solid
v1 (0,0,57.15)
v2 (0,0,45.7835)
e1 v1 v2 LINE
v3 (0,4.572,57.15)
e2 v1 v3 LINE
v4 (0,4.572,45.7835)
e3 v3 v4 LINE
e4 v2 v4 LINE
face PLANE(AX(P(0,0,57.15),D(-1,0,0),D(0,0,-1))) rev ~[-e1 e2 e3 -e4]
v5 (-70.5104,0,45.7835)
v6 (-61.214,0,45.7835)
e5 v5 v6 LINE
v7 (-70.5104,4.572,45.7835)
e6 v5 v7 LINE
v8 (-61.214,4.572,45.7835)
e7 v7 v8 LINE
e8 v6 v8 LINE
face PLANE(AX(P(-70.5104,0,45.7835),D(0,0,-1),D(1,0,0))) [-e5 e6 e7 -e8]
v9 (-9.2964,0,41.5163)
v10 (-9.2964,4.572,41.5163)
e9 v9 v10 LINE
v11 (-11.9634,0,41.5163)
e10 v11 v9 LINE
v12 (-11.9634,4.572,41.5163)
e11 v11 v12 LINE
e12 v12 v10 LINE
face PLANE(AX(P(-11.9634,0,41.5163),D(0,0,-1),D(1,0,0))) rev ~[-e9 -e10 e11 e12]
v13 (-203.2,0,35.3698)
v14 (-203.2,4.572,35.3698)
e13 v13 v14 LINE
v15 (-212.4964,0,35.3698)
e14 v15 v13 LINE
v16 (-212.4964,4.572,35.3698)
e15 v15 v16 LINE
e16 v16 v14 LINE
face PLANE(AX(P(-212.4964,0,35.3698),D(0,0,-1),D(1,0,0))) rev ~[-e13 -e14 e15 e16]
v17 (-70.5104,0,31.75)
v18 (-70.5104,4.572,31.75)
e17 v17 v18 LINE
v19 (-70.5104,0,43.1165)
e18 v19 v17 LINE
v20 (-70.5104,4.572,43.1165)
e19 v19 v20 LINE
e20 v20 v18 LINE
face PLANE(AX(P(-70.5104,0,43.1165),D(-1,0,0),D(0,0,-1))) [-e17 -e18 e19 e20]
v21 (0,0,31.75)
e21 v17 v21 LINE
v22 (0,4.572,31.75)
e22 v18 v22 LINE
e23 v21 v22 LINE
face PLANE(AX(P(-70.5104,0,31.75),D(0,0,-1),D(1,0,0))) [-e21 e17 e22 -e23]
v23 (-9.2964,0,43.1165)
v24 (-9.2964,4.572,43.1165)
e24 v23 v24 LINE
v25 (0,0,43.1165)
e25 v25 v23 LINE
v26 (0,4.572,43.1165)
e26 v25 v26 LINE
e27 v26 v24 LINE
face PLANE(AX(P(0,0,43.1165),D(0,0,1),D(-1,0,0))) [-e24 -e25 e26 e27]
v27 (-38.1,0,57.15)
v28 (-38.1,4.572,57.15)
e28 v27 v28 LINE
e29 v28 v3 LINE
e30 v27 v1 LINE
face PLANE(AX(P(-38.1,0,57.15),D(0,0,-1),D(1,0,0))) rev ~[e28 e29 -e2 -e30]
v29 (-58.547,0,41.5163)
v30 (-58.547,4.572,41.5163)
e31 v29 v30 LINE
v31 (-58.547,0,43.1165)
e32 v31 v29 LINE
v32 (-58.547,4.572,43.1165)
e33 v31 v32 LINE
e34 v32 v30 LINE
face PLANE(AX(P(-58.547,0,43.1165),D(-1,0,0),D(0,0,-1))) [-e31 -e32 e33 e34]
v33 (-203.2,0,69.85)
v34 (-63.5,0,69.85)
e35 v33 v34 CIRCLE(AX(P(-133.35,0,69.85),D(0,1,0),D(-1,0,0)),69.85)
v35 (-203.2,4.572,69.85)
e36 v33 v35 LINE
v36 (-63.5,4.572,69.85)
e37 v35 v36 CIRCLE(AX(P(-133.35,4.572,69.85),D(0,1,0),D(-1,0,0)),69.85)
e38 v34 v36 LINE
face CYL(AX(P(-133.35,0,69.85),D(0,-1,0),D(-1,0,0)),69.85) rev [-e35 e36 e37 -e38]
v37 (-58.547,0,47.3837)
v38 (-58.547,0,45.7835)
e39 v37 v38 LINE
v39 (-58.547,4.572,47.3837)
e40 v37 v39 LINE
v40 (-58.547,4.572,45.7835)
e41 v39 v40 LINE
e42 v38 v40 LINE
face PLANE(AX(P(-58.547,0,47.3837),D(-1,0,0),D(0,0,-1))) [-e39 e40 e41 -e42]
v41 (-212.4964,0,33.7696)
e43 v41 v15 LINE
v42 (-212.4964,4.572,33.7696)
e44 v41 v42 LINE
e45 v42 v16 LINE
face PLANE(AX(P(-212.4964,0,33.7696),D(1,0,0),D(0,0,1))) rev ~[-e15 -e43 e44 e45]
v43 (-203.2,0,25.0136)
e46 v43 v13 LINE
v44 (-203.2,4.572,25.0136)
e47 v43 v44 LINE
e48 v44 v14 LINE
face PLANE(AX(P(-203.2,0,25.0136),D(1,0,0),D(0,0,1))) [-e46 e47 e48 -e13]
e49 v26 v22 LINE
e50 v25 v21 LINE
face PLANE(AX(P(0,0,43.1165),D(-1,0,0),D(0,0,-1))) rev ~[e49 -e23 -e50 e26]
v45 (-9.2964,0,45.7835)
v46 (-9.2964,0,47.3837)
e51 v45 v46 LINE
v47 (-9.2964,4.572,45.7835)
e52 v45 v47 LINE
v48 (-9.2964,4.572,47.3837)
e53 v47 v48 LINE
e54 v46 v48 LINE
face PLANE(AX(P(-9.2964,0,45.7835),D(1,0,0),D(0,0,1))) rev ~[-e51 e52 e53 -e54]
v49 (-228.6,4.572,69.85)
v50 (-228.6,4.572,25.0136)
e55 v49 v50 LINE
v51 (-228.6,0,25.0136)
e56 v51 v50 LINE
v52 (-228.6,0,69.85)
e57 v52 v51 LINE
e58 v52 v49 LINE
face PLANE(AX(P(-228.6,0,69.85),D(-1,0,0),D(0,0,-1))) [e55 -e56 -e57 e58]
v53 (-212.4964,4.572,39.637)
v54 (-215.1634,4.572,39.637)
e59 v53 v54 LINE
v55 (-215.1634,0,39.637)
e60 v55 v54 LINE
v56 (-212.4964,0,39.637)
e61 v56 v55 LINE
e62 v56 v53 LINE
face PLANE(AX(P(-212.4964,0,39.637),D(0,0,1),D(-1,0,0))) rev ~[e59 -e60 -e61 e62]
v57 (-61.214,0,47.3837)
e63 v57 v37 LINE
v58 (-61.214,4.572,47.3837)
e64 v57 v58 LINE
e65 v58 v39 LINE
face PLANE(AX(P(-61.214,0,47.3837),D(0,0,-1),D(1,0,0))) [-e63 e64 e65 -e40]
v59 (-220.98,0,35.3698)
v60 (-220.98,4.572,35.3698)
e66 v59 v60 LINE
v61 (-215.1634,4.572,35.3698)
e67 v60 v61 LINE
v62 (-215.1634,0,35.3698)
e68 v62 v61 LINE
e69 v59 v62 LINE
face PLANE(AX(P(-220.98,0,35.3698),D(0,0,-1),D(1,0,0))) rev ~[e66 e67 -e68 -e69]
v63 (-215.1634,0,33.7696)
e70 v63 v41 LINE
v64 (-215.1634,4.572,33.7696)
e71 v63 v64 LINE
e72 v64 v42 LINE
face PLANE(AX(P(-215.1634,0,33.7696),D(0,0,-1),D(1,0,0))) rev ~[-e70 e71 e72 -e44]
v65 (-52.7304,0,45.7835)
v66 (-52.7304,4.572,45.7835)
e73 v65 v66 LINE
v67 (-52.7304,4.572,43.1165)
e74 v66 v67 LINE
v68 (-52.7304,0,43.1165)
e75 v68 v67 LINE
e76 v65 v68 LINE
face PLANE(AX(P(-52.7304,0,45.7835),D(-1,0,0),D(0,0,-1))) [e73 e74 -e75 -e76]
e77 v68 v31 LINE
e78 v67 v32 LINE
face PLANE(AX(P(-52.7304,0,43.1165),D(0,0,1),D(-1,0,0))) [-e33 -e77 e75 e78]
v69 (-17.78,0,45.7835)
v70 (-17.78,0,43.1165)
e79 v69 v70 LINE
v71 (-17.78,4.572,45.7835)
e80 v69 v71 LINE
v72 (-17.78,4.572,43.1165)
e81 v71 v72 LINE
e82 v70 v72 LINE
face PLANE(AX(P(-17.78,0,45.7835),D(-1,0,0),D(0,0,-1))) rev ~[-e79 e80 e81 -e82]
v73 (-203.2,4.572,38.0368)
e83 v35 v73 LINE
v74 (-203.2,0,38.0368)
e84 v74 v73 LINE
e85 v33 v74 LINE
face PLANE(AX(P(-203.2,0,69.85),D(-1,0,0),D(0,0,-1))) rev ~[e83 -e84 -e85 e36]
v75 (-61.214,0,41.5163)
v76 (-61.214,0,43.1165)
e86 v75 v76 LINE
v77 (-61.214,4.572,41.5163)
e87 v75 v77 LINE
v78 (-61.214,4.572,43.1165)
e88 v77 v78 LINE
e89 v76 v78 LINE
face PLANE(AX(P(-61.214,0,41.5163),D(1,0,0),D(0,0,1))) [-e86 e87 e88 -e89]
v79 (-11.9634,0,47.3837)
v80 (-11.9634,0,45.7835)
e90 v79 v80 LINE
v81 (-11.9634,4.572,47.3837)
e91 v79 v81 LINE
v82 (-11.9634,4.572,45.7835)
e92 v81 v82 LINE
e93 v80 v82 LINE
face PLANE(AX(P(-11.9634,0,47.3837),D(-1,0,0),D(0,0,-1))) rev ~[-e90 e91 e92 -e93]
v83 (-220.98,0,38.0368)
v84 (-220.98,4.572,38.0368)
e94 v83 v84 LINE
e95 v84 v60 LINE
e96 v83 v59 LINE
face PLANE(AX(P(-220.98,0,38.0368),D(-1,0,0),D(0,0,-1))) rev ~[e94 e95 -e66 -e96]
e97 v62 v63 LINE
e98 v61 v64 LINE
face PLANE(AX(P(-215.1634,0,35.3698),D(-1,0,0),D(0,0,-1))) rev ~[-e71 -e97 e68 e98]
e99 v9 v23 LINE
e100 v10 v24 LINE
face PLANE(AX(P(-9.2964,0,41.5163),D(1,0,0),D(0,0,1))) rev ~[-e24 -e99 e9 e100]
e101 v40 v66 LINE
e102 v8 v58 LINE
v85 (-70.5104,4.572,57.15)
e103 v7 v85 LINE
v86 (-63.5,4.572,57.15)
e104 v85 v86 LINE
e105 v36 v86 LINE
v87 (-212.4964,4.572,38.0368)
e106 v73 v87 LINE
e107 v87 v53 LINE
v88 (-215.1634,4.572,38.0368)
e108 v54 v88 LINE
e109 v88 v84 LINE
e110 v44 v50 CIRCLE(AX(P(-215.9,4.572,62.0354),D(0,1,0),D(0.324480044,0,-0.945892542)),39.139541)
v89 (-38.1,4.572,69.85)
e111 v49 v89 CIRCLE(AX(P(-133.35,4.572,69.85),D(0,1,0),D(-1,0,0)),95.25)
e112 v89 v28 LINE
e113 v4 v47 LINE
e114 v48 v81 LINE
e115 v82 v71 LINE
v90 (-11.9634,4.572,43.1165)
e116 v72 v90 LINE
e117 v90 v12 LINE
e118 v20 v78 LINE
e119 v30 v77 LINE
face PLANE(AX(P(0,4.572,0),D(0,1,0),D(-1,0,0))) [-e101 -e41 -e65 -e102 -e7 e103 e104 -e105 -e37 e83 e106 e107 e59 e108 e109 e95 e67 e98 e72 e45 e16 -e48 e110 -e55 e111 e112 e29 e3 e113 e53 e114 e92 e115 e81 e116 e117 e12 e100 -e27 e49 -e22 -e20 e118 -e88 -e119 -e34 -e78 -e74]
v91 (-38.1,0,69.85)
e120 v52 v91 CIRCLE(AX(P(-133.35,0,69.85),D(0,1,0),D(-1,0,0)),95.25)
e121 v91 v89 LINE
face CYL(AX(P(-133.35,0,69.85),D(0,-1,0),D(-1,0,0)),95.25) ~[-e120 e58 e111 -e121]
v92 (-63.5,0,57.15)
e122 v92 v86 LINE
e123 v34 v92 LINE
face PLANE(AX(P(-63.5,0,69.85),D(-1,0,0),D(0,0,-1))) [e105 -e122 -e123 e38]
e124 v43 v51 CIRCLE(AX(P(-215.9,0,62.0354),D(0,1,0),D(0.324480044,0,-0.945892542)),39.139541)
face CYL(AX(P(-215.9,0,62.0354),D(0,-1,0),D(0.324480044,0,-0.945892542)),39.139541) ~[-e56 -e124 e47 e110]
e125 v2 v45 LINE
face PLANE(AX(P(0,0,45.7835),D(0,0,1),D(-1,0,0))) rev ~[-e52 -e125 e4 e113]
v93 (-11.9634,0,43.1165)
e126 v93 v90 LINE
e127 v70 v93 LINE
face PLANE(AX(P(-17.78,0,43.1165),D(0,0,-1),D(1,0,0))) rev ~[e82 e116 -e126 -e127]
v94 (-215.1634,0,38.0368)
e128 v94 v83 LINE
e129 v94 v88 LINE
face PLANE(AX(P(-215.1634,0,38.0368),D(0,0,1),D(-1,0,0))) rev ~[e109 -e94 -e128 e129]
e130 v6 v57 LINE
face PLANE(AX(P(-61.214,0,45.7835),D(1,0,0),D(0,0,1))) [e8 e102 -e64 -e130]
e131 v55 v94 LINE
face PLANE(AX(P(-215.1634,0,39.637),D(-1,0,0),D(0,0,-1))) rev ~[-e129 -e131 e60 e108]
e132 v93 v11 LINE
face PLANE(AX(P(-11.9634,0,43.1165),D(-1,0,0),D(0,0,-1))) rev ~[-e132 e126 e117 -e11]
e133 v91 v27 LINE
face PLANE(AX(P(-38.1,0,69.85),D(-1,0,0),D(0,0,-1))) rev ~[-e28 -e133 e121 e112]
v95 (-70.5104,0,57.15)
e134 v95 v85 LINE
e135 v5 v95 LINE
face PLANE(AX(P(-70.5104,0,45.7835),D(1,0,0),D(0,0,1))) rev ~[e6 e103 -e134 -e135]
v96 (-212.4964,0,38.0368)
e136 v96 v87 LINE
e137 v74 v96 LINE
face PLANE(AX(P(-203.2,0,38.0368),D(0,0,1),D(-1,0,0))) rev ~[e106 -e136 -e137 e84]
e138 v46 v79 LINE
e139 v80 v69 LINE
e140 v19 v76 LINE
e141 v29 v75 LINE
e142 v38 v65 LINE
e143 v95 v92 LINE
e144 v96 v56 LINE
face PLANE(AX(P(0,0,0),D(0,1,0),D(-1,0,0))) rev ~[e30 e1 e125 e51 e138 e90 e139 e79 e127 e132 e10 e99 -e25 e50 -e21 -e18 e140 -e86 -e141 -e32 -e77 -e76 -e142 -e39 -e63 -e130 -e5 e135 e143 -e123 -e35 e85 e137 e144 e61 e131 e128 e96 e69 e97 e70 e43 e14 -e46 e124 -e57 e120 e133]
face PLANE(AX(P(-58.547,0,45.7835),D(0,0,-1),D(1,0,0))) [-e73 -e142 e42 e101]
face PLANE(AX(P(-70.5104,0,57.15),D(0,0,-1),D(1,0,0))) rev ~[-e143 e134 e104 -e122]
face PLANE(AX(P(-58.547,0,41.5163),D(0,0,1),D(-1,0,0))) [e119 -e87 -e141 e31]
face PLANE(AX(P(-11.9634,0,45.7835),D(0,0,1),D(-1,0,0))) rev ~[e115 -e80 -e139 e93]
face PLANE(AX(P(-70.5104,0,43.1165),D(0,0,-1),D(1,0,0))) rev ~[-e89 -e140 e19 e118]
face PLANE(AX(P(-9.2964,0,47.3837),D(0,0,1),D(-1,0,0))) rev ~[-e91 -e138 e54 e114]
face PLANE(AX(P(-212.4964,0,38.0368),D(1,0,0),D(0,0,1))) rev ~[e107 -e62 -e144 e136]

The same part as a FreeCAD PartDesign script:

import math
import FreeCAD as App
import Part
import Sketcher
Q = App.Units.Quantity

doc = App.newDocument("Part")
body = doc.addObject("PartDesign::Body", "Body")

sketch1 = body.newObject("Sketcher::SketchObject", "Sketch")
sketch1.AttachmentSupport = (doc.getObject("XZ_Plane"), [""])
sketch1.MapMode = "FlatFace"
sketch1.addGeometry([
    Part.LineSegment(App.Vector(-63.5, 57.15, 0), App.Vector(-63.5, 69.85, 0)),
    Part.ArcOfCircle(Part.Circle(App.Vector(-133.35, 69.85, 0), App.Vector(0, 0, 1), 69.85), math.radians(0), math.radians(180)),
    Part.LineSegment(App.Vector(-203.2, 69.85, 0), App.Vector(-203.2, 38.0368, 0)),
    Part.LineSegment(App.Vector(-203.2, 38.0368, 0), App.Vector(-212.4964, 38.0368, 0)),
    Part.LineSegment(App.Vector(-212.4964, 38.0368, 0), App.Vector(-212.4964, 39.637, 0)),
    Part.LineSegment(App.Vector(-212.4964, 39.637, 0), App.Vector(-215.1634, 39.637, 0)),
    Part.LineSegment(App.Vector(-215.1634, 39.637, 0), App.Vector(-215.1634, 38.0368, 0)),
    Part.LineSegment(App.Vector(-215.1634, 38.0368, 0), App.Vector(-220.98, 38.0368, 0)),
    Part.LineSegment(App.Vector(-220.98, 38.0368, 0), App.Vector(-220.98, 35.3698, 0)),
    Part.LineSegment(App.Vector(-220.98, 35.3698, 0), App.Vector(-215.1634, 35.3698, 0)),
    Part.LineSegment(App.Vector(-215.1634, 35.3698, 0), App.Vector(-215.1634, 33.7696, 0)),
    Part.LineSegment(App.Vector(-215.1634, 33.7696, 0), App.Vector(-212.4964, 33.7696, 0)),
    Part.LineSegment(App.Vector(-212.4964, 33.7696, 0), App.Vector(-212.4964, 35.3698, 0)),
    Part.LineSegment(App.Vector(-212.4964, 35.3698, 0), App.Vector(-203.2, 35.3698, 0)),
    Part.LineSegment(App.Vector(-203.2, 35.3698, 0), App.Vector(-203.2, 25.0136, 0)),
    Part.ArcOfCircle(Part.Circle(App.Vector(-215.9, 62.0354, 0), App.Vector(0, 0, 1), 39.139541), math.radians(-108.934077), math.radians(-71.065923)),
    Part.LineSegment(App.Vector(-228.6, 25.0136, 0), App.Vector(-228.6, 69.85, 0)),
    Part.ArcOfCircle(Part.Circle(App.Vector(-133.35, 69.85, 0), App.Vector(0, 0, 1), 95.25), math.radians(0), math.radians(180)),
    Part.LineSegment(App.Vector(-38.1, 69.85, 0), App.Vector(-38.1, 57.15, 0)),
    Part.LineSegment(App.Vector(-38.1, 57.15, 0), App.Vector(0, 57.15, 0)),
    Part.LineSegment(App.Vector(0, 57.15, 0), App.Vector(0, 45.7835, 0)),
    Part.LineSegment(App.Vector(0, 45.7835, 0), App.Vector(-9.2964, 45.7835, 0)),
    Part.LineSegment(App.Vector(-9.2964, 45.7835, 0), App.Vector(-9.2964, 47.3837, 0)),
    Part.LineSegment(App.Vector(-9.2964, 47.3837, 0), App.Vector(-11.9634, 47.3837, 0)),
    Part.LineSegment(App.Vector(-11.9634, 47.3837, 0), App.Vector(-11.9634, 45.7835, 0)),
    Part.LineSegment(App.Vector(-11.9634, 45.7835, 0), App.Vector(-17.78, 45.7835, 0)),
    Part.LineSegment(App.Vector(-17.78, 45.7835, 0), App.Vector(-17.78, 43.1165, 0)),
    Part.LineSegment(App.Vector(-17.78, 43.1165, 0), App.Vector(-11.9634, 43.1165, 0)),
    Part.LineSegment(App.Vector(-11.9634, 43.1165, 0), App.Vector(-11.9634, 41.5163, 0)),
    Part.LineSegment(App.Vector(-11.9634, 41.5163, 0), App.Vector(-9.2964, 41.5163, 0)),
    Part.LineSegment(App.Vector(-9.2964, 41.5163, 0), App.Vector(-9.2964, 43.1165, 0)),
    Part.LineSegment(App.Vector(-9.2964, 43.1165, 0), App.Vector(0, 43.1165, 0)),
    Part.LineSegment(App.Vector(0, 43.1165, 0), App.Vector(0, 31.75, 0)),
    Part.LineSegment(App.Vector(0, 31.75, 0), App.Vector(-70.5104, 31.75, 0)),
    Part.LineSegment(App.Vector(-70.5104, 31.75, 0), App.Vector(-70.5104, 43.1165, 0)),
    Part.LineSegment(App.Vector(-70.5104, 43.1165, 0), App.Vector(-61.214, 43.1165, 0)),
    Part.LineSegment(App.Vector(-61.214, 43.1165, 0), App.Vector(-61.214, 41.5163, 0)),
    Part.LineSegment(App.Vector(-61.214, 41.5163, 0), App.Vector(-58.547, 41.5163, 0)),
    Part.LineSegment(App.Vector(-58.547, 41.5163, 0), App.Vector(-58.547, 43.1165, 0)),
    Part.LineSegment(App.Vector(-58.547, 43.1165, 0), App.Vector(-52.7304, 43.1165, 0)),
    Part.LineSegment(App.Vector(-52.7304, 43.1165, 0), App.Vector(-52.7304, 45.7835, 0)),
    Part.LineSegment(App.Vector(-52.7304, 45.7835, 0), App.Vector(-58.547, 45.7835, 0)),
    Part.LineSegment(App.Vector(-58.547, 45.7835, 0), App.Vector(-58.547, 47.3837, 0)),
    Part.LineSegment(App.Vector(-58.547, 47.3837, 0), App.Vector(-61.214, 47.3837, 0)),
    Part.LineSegment(App.Vector(-61.214, 47.3837, 0), App.Vector(-61.214, 45.7835, 0)),
    Part.LineSegment(App.Vector(-61.214, 45.7835, 0), App.Vector(-70.5104, 45.7835, 0)),
    Part.LineSegment(App.Vector(-70.5104, 45.7835, 0), App.Vector(-70.5104, 57.15, 0)),
    Part.LineSegment(App.Vector(-70.5104, 57.15, 0), App.Vector(-63.5, 57.15, 0)),
], False)
sketch1.addConstraint([
    Sketcher.Constraint("Tangent", 0, 2, 1, 1),
    Sketcher.Constraint("Tangent", 1, 2, 2, 1),
    Sketcher.Constraint("Coincident", 2, 2, 3, 1),
    Sketcher.Constraint("Coincident", 3, 2, 4, 1),
    Sketcher.Constraint("Coincident", 4, 2, 5, 1),
    Sketcher.Constraint("Coincident", 5, 2, 6, 1),
    Sketcher.Constraint("Coincident", 6, 2, 7, 1),
    Sketcher.Constraint("Coincident", 7, 2, 8, 1),
    Sketcher.Constraint("Coincident", 8, 2, 9, 1),
    Sketcher.Constraint("Coincident", 9, 2, 10, 1),
    Sketcher.Constraint("Coincident", 10, 2, 11, 1),
    Sketcher.Constraint("Coincident", 11, 2, 12, 1),
    Sketcher.Constraint("Coincident", 12, 2, 13, 1),
    Sketcher.Constraint("Coincident", 13, 2, 14, 1),
    Sketcher.Constraint("Coincident", 14, 2, 15, 2),
    Sketcher.Constraint("Coincident", 15, 1, 16, 1),
    Sketcher.Constraint("Tangent", 16, 2, 17, 2),
    Sketcher.Constraint("Tangent", 17, 1, 18, 1),
    Sketcher.Constraint("Coincident", 18, 2, 19, 1),
    Sketcher.Constraint("Coincident", 19, 2, 20, 1),
    Sketcher.Constraint("Coincident", 20, 2, 21, 1),
    Sketcher.Constraint("Coincident", 21, 2, 22, 1),
    Sketcher.Constraint("Coincident", 22, 2, 23, 1),
    Sketcher.Constraint("Coincident", 23, 2, 24, 1),
    Sketcher.Constraint("Coincident", 24, 2, 25, 1),
    Sketcher.Constraint("Coincident", 25, 2, 26, 1),
    Sketcher.Constraint("Coincident", 26, 2, 27, 1),
    Sketcher.Constraint("Coincident", 27, 2, 28, 1),
    Sketcher.Constraint("Coincident", 28, 2, 29, 1),
    Sketcher.Constraint("Coincident", 29, 2, 30, 1),
    Sketcher.Constraint("Coincident", 30, 2, 31, 1),
    Sketcher.Constraint("Coincident", 31, 2, 32, 1),
    Sketcher.Constraint("Coincident", 32, 2, 33, 1),
    Sketcher.Constraint("Coincident", 33, 2, 34, 1),
    Sketcher.Constraint("Coincident", 34, 2, 35, 1),
    Sketcher.Constraint("Coincident", 35, 2, 36, 1),
    Sketcher.Constraint("Coincident", 36, 2, 37, 1),
    Sketcher.Constraint("Coincident", 37, 2, 38, 1),
    Sketcher.Constraint("Coincident", 38, 2, 39, 1),
    Sketcher.Constraint("Coincident", 39, 2, 40, 1),
    Sketcher.Constraint("Coincident", 40, 2, 41, 1),
    Sketcher.Constraint("Coincident", 41, 2, 42, 1),
    Sketcher.Constraint("Coincident", 42, 2, 43, 1),
    Sketcher.Constraint("Coincident", 43, 2, 44, 1),
    Sketcher.Constraint("Coincident", 44, 2, 45, 1),
    Sketcher.Constraint("Coincident", 45, 2, 46, 1),
    Sketcher.Constraint("Coincident", 46, 2, 47, 1),
    Sketcher.Constraint("Coincident", 47, 2, 0, 1),
    Sketcher.Constraint("Vertical", 0),
    Sketcher.Constraint("Vertical", 2),
    Sketcher.Constraint("Horizontal", 3),
    Sketcher.Constraint("Vertical", 4),
    Sketcher.Constraint("Horizontal", 5),
    Sketcher.Constraint("Vertical", 6),
    Sketcher.Constraint("Horizontal", 7),
    Sketcher.Constraint("Vertical", 8),
    Sketcher.Constraint("Horizontal", 9),
    Sketcher.Constraint("Vertical", 10),
    Sketcher.Constraint("Horizontal", 11),
    Sketcher.Constraint("Vertical", 12),
    Sketcher.Constraint("Horizontal", 13),
    Sketcher.Constraint("Vertical", 14),
    Sketcher.Constraint("Vertical", 16),
    Sketcher.Constraint("Vertical", 18),
    Sketcher.Constraint("Horizontal", 19),
    Sketcher.Constraint("Vertical", 20),
    Sketcher.Constraint("Horizontal", 21),
    Sketcher.Constraint("Vertical", 22),
    Sketcher.Constraint("Horizontal", 23),
    Sketcher.Constraint("Vertical", 24),
    Sketcher.Constraint("Horizontal", 25),
    Sketcher.Constraint("Vertical", 26),
    Sketcher.Constraint("Horizontal", 27),
    Sketcher.Constraint("Vertical", 28),
    Sketcher.Constraint("Horizontal", 29),
    Sketcher.Constraint("Vertical", 30),
    Sketcher.Constraint("Horizontal", 31),
    Sketcher.Constraint("Vertical", 32),
    Sketcher.Constraint("Horizontal", 33),
    Sketcher.Constraint("Vertical", 34),
    Sketcher.Constraint("Horizontal", 35),
    Sketcher.Constraint("Vertical", 36),
    Sketcher.Constraint("Horizontal", 37),
    Sketcher.Constraint("Vertical", 38),
    Sketcher.Constraint("Horizontal", 39),
    Sketcher.Constraint("Vertical", 40),
    Sketcher.Constraint("Horizontal", 41),
    Sketcher.Constraint("Vertical", 42),
    Sketcher.Constraint("Horizontal", 43),
    Sketcher.Constraint("Vertical", 44),
    Sketcher.Constraint("Horizontal", 45),
    Sketcher.Constraint("Vertical", 46),
    Sketcher.Constraint("Horizontal", 47),
    Sketcher.Constraint("Coincident", 17, 3, 1, 3),
    Sketcher.Constraint("PointOnObject", 19, 2, -2),
    Sketcher.Constraint("PointOnObject", 31, 2, -2),
    Sketcher.Constraint("Horizontal", 3, 2, 6, 2),
    Sketcher.Constraint("Horizontal", 9, 2, 12, 2),
    Sketcher.Constraint("Horizontal", 14, 2, 15, 1),
    Sketcher.Constraint("Horizontal", 21, 2, 24, 2),
    Sketcher.Constraint("Horizontal", 27, 2, 30, 2),
    Sketcher.Constraint("Horizontal", 31, 2, 34, 2),
    Sketcher.Constraint("Horizontal", 29, 2, 36, 2),
    Sketcher.Constraint("Horizontal", 35, 2, 38, 2),
    Sketcher.Constraint("Horizontal", 25, 2, 40, 2),
    Sketcher.Constraint("Horizontal", 23, 2, 42, 2),
    Sketcher.Constraint("Horizontal", 41, 2, 44, 2),
    Sketcher.Constraint("Horizontal", 19, 2, 46, 2),
    Sketcher.Constraint("Vertical", 6, 2, 9, 2),
    Sketcher.Constraint("Vertical", 4, 2, 11, 2),
    Sketcher.Constraint("Vertical", 2, 2, 13, 2),
    Sketcher.Constraint("Vertical", 24, 2, 27, 2),
    Sketcher.Constraint("Vertical", 22, 2, 29, 2),
    Sketcher.Constraint("Vertical", 38, 2, 41, 2),
    Sketcher.Constraint("Vertical", 36, 2, 43, 2),
    Sketcher.Constraint("Vertical", 34, 2, 45, 2),
    Sketcher.Constraint("Equal", 13, 21),
    Sketcher.Constraint("Equal", 11, 23),
    Sketcher.Constraint("Equal", 9, 25),
    Sketcher.Constraint("Equal", 31, 35),
    Sketcher.Constraint("Equal", 29, 37),
    Sketcher.Constraint("Equal", 27, 39),
    Sketcher.Constraint("Equal", 43, 8),
    Sketcher.Constraint("Equal", 6, 10),
    Sketcher.Constraint("Equal", 12, 22),
    Sketcher.Constraint("Equal", 8, 26),
    Sketcher.Constraint("Equal", 24, 28),
    Sketcher.Constraint("Equal", 20, 32),
    Sketcher.Constraint("Radius", 17, Q("3.75 in")),
    Sketcher.Constraint("DistanceX", 19, 1, 19, 2, Q("1.5 in")),
    Sketcher.Constraint("DistanceY", 0, 1, 0, 2, Q("0.5 in")),
    Sketcher.Constraint("DistanceX", 16, 2, 1, 2, Q("1 in")),
    Sketcher.Constraint("DistanceY", 33, 2, 18, 2, Q("1 in")),
    Sketcher.Constraint("DistanceX", 3, 2, 3, 1, Q("0.366 in")),
    Sketcher.Constraint("DistanceX", 5, 2, 5, 1, Q("0.105 in")),
    Sketcher.Constraint("DistanceX", 7, 2, 7, 1, Q("0.229 in")),
    Sketcher.Constraint("DistanceX", 33, 2, 33, 1, Q("2.776 in")),
    Sketcher.Constraint("DistanceY", 4, 1, 4, 2, Q("0.063 in")),
    Sketcher.Constraint("DistanceY", -1, 1, 1, 3, Q("2.75 in")),
    Sketcher.Constraint("Radius", 15, 39.1395),
    Sketcher.Constraint("DistanceY", 4, 2, 15, 3, 22.3984),
    Sketcher.Constraint("DistanceY", 2, 2, 2, 1, Q("1.2525 in")),
])
pad1 = body.newObject("PartDesign::Pad", "Pad")
pad1.Profile = sketch1
pad1.Length = Q("0.18 in")
pad1.Reversed = True

doc.recompute()
